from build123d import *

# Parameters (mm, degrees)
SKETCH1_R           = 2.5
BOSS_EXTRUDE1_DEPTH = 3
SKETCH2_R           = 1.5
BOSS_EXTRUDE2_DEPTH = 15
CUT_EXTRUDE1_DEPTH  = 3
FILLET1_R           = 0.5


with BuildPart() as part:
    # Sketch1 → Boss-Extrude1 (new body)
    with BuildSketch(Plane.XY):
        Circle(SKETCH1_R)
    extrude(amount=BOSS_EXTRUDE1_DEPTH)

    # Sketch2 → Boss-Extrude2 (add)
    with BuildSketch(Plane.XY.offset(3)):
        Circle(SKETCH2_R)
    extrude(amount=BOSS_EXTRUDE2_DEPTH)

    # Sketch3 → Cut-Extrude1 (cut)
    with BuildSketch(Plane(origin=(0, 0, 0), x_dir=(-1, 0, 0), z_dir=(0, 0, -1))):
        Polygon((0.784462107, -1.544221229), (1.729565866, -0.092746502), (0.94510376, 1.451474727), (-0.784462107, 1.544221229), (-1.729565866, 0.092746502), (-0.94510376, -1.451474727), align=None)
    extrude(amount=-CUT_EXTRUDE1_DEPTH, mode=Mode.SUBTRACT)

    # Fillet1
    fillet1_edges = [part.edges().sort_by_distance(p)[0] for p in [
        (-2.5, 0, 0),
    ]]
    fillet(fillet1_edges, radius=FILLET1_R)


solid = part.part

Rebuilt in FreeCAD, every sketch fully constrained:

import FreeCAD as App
import Part
import Sketcher
from FreeCAD import Vector


def edges_at(feature, points):
    """Names of the edges that pass closest to the given points."""
    edges = feature.Shape.Edges
    near = lambda p: min(range(len(edges)), key=lambda i: edges[i].distToShape(Part.Vertex(*p))[0])
    return sorted({f"Edge{near(p) + 1}" for p in points})

doc = App.newDocument("Part")
body = doc.addObject("PartDesign::Body", "Body")
body.AllowCompound = True

# Sketch on XY plane
sketch1 = doc.addObject("Sketcher::SketchObject", "Sketch")
body.addObject(sketch1)
sketch1.AttachmentSupport = (doc.XY_Plane, [""])
sketch1.MapMode = "FlatFace"
sketch1.addGeometry(Part.Circle(Vector(0, 0, 0), Vector(0, 0, 1), 2.5), False)
sketch1.addConstraint([
    Sketcher.Constraint("Coincident", 0, 3, -1, 1),
    Sketcher.Constraint("Diameter", 0, 5.0),
])
pad1 = doc.addObject("PartDesign::Pad", "Pad")
body.addObject(pad1)
pad1.Profile = sketch1
pad1.Length = 3

# Sketch on XY plane
sketch2 = doc.addObject("Sketcher::SketchObject", "Sketch001")
body.addObject(sketch2)
sketch2.AttachmentSupport = (doc.XY_Plane, [""])
sketch2.MapMode = "FlatFace"
sketch2.AttachmentOffset = App.Placement(Vector(0, 0, 3), App.Rotation())
sketch2.addGeometry(Part.Circle(Vector(0, 0, 0), Vector(0, 0, 1), 1.5), False)
sketch2.addConstraint([
    Sketcher.Constraint("Coincident", 0, 3, -1, 1),
    Sketcher.Constraint("Diameter", 0, 3.0),
])
pad2 = doc.addObject("PartDesign::Pad", "Pad001")
body.addObject(pad2)
pad2.Profile = sketch2
pad2.Length = 15

# Sketch on XY plane
sketch3 = doc.addObject("Sketcher::SketchObject", "Sketch002")
body.addObject(sketch3)
sketch3.AttachmentSupport = (doc.XY_Plane, [""])
sketch3.MapMode = "FlatFace"
sketch3.addGeometry([
    Part.LineSegment(Vector(-0.784462, -1.544221, 0), Vector(-1.729566, -0.092747, 0)),  # 0
    Part.LineSegment(Vector(-1.729566, -0.092747, 0), Vector(-0.945104, 1.451475, 0)),  # 1
    Part.LineSegment(Vector(-0.945104, 1.451475, 0), Vector(0.784462, 1.544221, 0)),  # 2
    Part.LineSegment(Vector(0.784462, 1.544221, 0), Vector(1.729566, 0.092747, 0)),  # 3
    Part.LineSegment(Vector(1.729566, 0.092747, 0), Vector(0.945104, -1.451475, 0)),  # 4
    Part.LineSegment(Vector(0.945104, -1.451475, 0), Vector(-0.784462, -1.544221, 0)),  # 5
], False)
sketch3.addConstraint([
    Sketcher.Constraint("Coincident", 0, 2, 1, 1),
    Sketcher.Constraint("Coincident", 1, 2, 2, 1),
    Sketcher.Constraint("Coincident", 2, 2, 3, 1),
    Sketcher.Constraint("Coincident", 3, 2, 4, 1),
    Sketcher.Constraint("Coincident", 4, 2, 5, 1),
    Sketcher.Constraint("Coincident", 5, 2, 0, 1),
    Sketcher.Constraint("Symmetric", 0, 2, 3, 2, -1, 1),
    Sketcher.Constraint("Symmetric", 1, 2, 4, 2, -1, 1),
    Sketcher.Constraint("Symmetric", 2, 2, 5, 2, -1, 1),
    Sketcher.Constraint("Equal", 0, 1),
    Sketcher.Constraint("Equal", 1, 2),
    Sketcher.Constraint("Distance", 0, 1.732051),
    Sketcher.Constraint("DistanceY", -1, 1, 2, 2, 1.544221),
    Sketcher.Constraint("DistanceY", 0, 2, 1, 2, 1.544221),
    Sketcher.Constraint("DistanceX", 1, 2, 3, 2, 2.67467),
])
pocket1 = doc.addObject("PartDesign::Pocket", "Pocket")
body.addObject(pocket1)
pocket1.Profile = sketch3
pocket1.Length = 3
pocket1.Reversed = True
doc.recompute()

fillet = doc.addObject("PartDesign::Fillet", "Fillet")
body.addObject(fillet)
fillet.Base = (pocket1, edges_at(pocket1, [(-2.5, 0, 0)]))
fillet.Radius = 0.5

doc.recompute()
